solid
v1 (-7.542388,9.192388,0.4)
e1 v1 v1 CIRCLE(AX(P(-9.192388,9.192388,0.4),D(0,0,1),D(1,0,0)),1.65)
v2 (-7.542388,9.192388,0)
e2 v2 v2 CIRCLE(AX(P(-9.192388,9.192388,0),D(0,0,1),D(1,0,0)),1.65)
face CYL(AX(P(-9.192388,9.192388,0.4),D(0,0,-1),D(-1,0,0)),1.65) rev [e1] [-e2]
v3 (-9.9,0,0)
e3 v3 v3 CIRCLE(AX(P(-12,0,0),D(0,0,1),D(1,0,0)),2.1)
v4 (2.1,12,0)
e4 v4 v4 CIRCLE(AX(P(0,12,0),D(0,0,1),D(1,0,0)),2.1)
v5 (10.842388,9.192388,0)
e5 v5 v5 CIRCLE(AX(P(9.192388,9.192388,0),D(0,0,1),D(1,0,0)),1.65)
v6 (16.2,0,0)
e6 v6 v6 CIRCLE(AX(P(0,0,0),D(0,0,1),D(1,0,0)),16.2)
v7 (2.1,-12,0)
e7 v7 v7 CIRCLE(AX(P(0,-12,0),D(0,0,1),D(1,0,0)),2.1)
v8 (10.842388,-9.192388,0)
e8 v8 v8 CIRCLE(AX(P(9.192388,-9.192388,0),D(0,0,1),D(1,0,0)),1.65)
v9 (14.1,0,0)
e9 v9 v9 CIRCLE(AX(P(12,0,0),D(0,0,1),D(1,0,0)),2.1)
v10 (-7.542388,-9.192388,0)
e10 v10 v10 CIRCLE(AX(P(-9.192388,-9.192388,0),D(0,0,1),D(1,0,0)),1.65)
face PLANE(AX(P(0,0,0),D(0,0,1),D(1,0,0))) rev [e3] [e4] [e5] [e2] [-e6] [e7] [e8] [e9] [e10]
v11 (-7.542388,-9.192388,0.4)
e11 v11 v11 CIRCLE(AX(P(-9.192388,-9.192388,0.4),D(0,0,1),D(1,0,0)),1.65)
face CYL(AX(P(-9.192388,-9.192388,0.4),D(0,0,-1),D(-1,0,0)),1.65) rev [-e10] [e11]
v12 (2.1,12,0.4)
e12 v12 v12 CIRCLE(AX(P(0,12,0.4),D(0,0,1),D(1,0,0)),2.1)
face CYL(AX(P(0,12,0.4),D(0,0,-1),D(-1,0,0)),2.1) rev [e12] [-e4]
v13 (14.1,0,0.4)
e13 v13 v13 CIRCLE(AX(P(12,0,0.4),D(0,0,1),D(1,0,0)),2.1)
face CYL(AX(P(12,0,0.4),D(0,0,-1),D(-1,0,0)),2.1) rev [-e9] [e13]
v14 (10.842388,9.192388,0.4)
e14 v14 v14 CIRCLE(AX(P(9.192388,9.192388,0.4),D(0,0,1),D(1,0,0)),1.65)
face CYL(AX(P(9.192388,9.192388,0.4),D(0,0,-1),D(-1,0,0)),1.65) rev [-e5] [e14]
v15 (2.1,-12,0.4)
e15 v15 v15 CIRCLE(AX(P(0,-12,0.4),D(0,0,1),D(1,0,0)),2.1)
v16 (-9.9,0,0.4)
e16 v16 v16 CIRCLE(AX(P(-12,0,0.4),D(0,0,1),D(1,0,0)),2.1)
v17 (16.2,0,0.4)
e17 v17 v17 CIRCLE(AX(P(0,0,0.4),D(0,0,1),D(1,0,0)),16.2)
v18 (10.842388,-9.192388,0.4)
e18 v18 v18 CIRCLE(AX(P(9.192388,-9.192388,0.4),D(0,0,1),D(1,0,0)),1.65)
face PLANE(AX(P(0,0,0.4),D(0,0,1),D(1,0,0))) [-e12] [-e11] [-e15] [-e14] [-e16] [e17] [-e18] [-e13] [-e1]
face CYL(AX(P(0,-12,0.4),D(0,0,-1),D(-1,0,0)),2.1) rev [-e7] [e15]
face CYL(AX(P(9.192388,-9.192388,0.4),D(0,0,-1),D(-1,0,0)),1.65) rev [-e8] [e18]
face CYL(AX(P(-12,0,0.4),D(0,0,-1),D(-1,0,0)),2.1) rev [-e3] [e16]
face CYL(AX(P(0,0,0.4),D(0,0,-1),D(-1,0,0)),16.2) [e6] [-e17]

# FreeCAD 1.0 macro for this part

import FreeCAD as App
import Part
import Sketcher

V = App.Vector
Q = App.Units.Quantity

doc = App.newDocument("Part")
body = doc.addObject("PartDesign::Body", "Body")

sketch1 = body.newObject("Sketcher::SketchObject", "Sketch")
sketch1.AttachmentSupport = (doc.getObject("XY_Plane"), [""])
sketch1.MapMode = "FlatFace"
sketch1.addGeometry(Part.Circle(V(0, 0, 0), V(0, 0, 1), 16.2), False)
sketch1.addGeometry(Part.Circle(V(9.2, -9.2, 0), V(0, 0, 1), 1.6), False)
sketch1.addGeometry(Part.Circle(V(12, 0, 0), V(0, 0, 1), 2.1), False)
sketch1.addGeometry(Part.Circle(V(9.2, 9.2, 0), V(0, 0, 1), 1.6), False)
sketch1.addGeometry(Part.Circle(V(0, -12, 0), V(0, 0, 1), 2.1), False)
sketch1.addGeometry(Part.Circle(V(-9.2, -9.2, 0), V(0, 0, 1), 1.6), False)
sketch1.addGeometry(Part.Circle(V(0, 12, 0), V(0, 0, 1), 2.1), False)
sketch1.addGeometry(Part.Circle(V(-12, 0, 0), V(0, 0, 1), 2.1), False)
sketch1.addGeometry(Part.Circle(V(-9.2, 9.2, 0), V(0, 0, 1), 1.6), False)
sketch1.addConstraint(Sketcher.Constraint("Coincident", 0, 3, -1, 1))
sketch1.addConstraint(Sketcher.Constraint("Equal", 1, 3))
sketch1.addConstraint(Sketcher.Constraint("Equal", 2, 4))
sketch1.addConstraint(Sketcher.Constraint("Equal", 3, 5))
sketch1.addConstraint(Sketcher.Constraint("Equal", 4, 6))
sketch1.addConstraint(Sketcher.Constraint("Equal", 6, 7))
sketch1.addConstraint(Sketcher.Constraint("Equal", 5, 8))
sketch1.addConstraint(Sketcher.Constraint("Symmetric", 3, 3, 5, 3, -1, 1))
sketch1.addConstraint(Sketcher.Constraint("Symmetric", 4, 3, 6, 3, -1, 1))
sketch1.addConstraint(Sketcher.Constraint("Symmetric", 2, 3, 7, 3, -1, 1))
sketch1.addConstraint(Sketcher.Constraint("Symmetric", 1, 3, 8, 3, -1, 1))
sketch1.addConstraint(Sketcher.Constraint("Symmetric", 1, 3, 5, 3, -2))
sketch1.addConstraint(Sketcher.Constraint("PointOnObject", 2, 3, -1))
sketch1.addConstraint(Sketcher.Constraint("PointOnObject", 4, 3, -2))
sketch1.addConstraint(Sketcher.Constraint("Diameter", 0, Q("32.4 mm")))
sketch1.addConstraint(Sketcher.Constraint("Diameter", 1, Q("3.3 mm")))
sketch1.addConstraint(Sketcher.Constraint("Diameter", 2, Q("4.2 mm")))
sketch1.addConstraint(Sketcher.Constraint("DistanceX", -1, 1, 2, 3, Q("12 mm")))
sketch1.addConstraint(Sketcher.Constraint("DistanceY", 4, 3, -1, 1, Q("12 mm")))
sketch1.addConstraint(Sketcher.Constraint("DistanceX", -1, 1, 1, 3, Q("9.192388 mm")))
sketch1.addConstraint(Sketcher.Constraint("DistanceY", 1, 3, -1, 1, Q("9.192388 mm")))
pad1 = body.newObject("PartDesign::Pad", "Pad")
pad1.Profile = sketch1
pad1.Length = 0.4

doc.recompute()
